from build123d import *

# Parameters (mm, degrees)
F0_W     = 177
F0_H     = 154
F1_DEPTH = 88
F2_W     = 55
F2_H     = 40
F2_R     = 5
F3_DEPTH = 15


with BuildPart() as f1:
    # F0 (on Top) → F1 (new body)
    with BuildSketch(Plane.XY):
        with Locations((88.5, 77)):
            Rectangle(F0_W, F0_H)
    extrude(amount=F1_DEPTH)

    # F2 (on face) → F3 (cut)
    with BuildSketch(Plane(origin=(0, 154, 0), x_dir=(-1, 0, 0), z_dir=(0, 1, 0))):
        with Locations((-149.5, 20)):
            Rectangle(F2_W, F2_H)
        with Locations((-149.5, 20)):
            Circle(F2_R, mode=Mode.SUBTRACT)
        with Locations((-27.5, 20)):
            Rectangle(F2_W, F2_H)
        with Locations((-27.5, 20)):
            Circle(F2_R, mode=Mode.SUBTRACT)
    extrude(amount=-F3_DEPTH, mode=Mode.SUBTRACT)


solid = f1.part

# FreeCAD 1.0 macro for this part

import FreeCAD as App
import Part
import Sketcher

V = App.Vector
Q = App.Units.Quantity


def add_polygon(sketch, points):
    """Adds a closed chain of lines whose ends are joined by coincident constraints."""
    first, n = sketch.GeometryCount, len(points)
    for a, b in zip(points, points[1:] + points[:1]):
        sketch.addGeometry(Part.LineSegment(App.Vector(*a, 0), App.Vector(*b, 0)), False)
    for i in range(n):
        sketch.addConstraint(Sketcher.Constraint("Coincident", first + i, 2, first + (i + 1) % n, 1))

doc = App.newDocument("Part")
params = doc.addObject("Spreadsheet::Sheet", "Params")
for row, (alias, value) in enumerate([
    ("sketch1_width", "177 mm"),
    ("sketch1_height", "154 mm"),
    ("pad1_length", "88 mm"),
    ("sketch2_diameter", "10 mm"),
    ("sketch2_width", "55 mm"),
    ("sketch2_height", "40 mm"),
    ("pocket1_length", "15 mm"),
], start=1):
    params.set(f"A{row}", alias)
    params.set(f"B{row}", "=" + value)
    params.setAlias(f"B{row}", alias)

body = doc.addObject("PartDesign::Body", "Body")

# Sketch on XY plane
sketch1 = body.newObject("Sketcher::SketchObject", "Sketch")
sketch1.AttachmentSupport = (doc.getObject("XY_Plane"), [""])
sketch1.MapMode = "FlatFace"
add_polygon(sketch1, [(0, 154), (0, 0), (177, 0), (177, 154)])  # lines 0-3
sketch1.addConstraint(Sketcher.Constraint("Vertical", 0))
sketch1.addConstraint(Sketcher.Constraint("Horizontal", 1))
sketch1.addConstraint(Sketcher.Constraint("Vertical", 2))
sketch1.addConstraint(Sketcher.Constraint("Horizontal", 3))
sketch1.addConstraint(Sketcher.Constraint("Coincident", 0, 2, -1, 1))
sketch1.addConstraint(Sketcher.Constraint("DistanceX", 1, 1, 1, 2, Q("177 mm")))
sketch1.addConstraint(Sketcher.Constraint("DistanceY", 0, 2, 0, 1, Q("154 mm")))
sketch1.setExpression("Constraints[9]", "Params.sketch1_width")
sketch1.setExpression("Constraints[10]", "Params.sketch1_height")
pad1 = body.newObject("PartDesign::Pad", "Pad")
pad1.Profile = sketch1
pad1.setExpression("Length", "Params.pad1_length")

# Sketch on XZ plane
sketch2 = body.newObject("Sketcher::SketchObject", "Sketch001")
sketch2.AttachmentSupport = (doc.getObject("XZ_Plane"), [""])
sketch2.MapMode = "FlatFace"
sketch2.AttachmentOffset = App.Placement(V(0, 0, -154), App.Rotation())
add_polygon(sketch2, [(177, 40), (177, 0), (122, 0), (122, 40)])  # lines 0-3
sketch2.addGeometry(Part.Circle(V(150, 20, 0), V(0, 0, 1), 5), False)  # 4
add_polygon(sketch2, [(55, 40), (55, 0), (0, 0), (0, 40)])  # lines 5-8
sketch2.addGeometry(Part.Circle(V(28, 20, 0), V(0, 0, 1), 5), False)  # 9
sketch2.addConstraint(Sketcher.Constraint("Vertical", 0))
sketch2.addConstraint(Sketcher.Constraint("Horizontal", 1))
sketch2.addConstraint(Sketcher.Constraint("Vertical", 2))
sketch2.addConstraint(Sketcher.Constraint("Horizontal", 3))
sketch2.addConstraint(Sketcher.Constraint("Vertical", 5))
sketch2.addConstraint(Sketcher.Constraint("Horizontal", 6))
sketch2.addConstraint(Sketcher.Constraint("Vertical", 7))
sketch2.addConstraint(Sketcher.Constraint("Horizontal", 8))
sketch2.addConstraint(Sketcher.Constraint("Coincident", 6, 2, -1, 1))
sketch2.addConstraint(Sketcher.Constraint("Equal", 4, 9))
sketch2.addConstraint(Sketcher.Constraint("PointOnObject", 0, 2, -1))
sketch2.addConstraint(Sketcher.Constraint("Horizontal", 4, 3, 9, 3))
sketch2.addConstraint(Sketcher.Constraint("Horizontal", 3, 2, 7, 2))
sketch2.addConstraint(Sketcher.Constraint("Equal", 3, 6))
sketch2.addConstraint(Sketcher.Constraint("Diameter", 4, Q("10 mm")))
sketch2.addConstraint(Sketcher.Constraint("DistanceX", 1, 2, 1, 1, Q("55 mm")))
sketch2.addConstraint(Sketcher.Constraint("DistanceY", 0, 2, 0, 1, Q("40 mm")))
sketch2.addConstraint(Sketcher.Constraint("DistanceY", -1, 1, 4, 3, Q("20 mm")))
sketch2.addConstraint(Sketcher.Constraint("DistanceX", -1, 1, 0, 2, Q("177 mm")))
sketch2.addConstraint(Sketcher.Constraint("DistanceX", 9, 3, 4, 3, Q("122 mm")))
sketch2.addConstraint(Sketcher.Constraint("DistanceX", -1, 1, 4, 3, Q("149.5 mm")))
sketch2.setExpression("Constraints[22]", "Params.sketch2_diameter")
sketch2.setExpression("Constraints[23]", "Params.sketch2_width")
sketch2.setExpression("Constraints[24]", "Params.sketch2_height")
pocket1 = body.newObject("PartDesign::Pocket", "Pocket")
pocket1.Profile = sketch2
pocket1.setExpression("Length", "Params.pocket1_length")
pocket1.Reversed = True

doc.recompute()
